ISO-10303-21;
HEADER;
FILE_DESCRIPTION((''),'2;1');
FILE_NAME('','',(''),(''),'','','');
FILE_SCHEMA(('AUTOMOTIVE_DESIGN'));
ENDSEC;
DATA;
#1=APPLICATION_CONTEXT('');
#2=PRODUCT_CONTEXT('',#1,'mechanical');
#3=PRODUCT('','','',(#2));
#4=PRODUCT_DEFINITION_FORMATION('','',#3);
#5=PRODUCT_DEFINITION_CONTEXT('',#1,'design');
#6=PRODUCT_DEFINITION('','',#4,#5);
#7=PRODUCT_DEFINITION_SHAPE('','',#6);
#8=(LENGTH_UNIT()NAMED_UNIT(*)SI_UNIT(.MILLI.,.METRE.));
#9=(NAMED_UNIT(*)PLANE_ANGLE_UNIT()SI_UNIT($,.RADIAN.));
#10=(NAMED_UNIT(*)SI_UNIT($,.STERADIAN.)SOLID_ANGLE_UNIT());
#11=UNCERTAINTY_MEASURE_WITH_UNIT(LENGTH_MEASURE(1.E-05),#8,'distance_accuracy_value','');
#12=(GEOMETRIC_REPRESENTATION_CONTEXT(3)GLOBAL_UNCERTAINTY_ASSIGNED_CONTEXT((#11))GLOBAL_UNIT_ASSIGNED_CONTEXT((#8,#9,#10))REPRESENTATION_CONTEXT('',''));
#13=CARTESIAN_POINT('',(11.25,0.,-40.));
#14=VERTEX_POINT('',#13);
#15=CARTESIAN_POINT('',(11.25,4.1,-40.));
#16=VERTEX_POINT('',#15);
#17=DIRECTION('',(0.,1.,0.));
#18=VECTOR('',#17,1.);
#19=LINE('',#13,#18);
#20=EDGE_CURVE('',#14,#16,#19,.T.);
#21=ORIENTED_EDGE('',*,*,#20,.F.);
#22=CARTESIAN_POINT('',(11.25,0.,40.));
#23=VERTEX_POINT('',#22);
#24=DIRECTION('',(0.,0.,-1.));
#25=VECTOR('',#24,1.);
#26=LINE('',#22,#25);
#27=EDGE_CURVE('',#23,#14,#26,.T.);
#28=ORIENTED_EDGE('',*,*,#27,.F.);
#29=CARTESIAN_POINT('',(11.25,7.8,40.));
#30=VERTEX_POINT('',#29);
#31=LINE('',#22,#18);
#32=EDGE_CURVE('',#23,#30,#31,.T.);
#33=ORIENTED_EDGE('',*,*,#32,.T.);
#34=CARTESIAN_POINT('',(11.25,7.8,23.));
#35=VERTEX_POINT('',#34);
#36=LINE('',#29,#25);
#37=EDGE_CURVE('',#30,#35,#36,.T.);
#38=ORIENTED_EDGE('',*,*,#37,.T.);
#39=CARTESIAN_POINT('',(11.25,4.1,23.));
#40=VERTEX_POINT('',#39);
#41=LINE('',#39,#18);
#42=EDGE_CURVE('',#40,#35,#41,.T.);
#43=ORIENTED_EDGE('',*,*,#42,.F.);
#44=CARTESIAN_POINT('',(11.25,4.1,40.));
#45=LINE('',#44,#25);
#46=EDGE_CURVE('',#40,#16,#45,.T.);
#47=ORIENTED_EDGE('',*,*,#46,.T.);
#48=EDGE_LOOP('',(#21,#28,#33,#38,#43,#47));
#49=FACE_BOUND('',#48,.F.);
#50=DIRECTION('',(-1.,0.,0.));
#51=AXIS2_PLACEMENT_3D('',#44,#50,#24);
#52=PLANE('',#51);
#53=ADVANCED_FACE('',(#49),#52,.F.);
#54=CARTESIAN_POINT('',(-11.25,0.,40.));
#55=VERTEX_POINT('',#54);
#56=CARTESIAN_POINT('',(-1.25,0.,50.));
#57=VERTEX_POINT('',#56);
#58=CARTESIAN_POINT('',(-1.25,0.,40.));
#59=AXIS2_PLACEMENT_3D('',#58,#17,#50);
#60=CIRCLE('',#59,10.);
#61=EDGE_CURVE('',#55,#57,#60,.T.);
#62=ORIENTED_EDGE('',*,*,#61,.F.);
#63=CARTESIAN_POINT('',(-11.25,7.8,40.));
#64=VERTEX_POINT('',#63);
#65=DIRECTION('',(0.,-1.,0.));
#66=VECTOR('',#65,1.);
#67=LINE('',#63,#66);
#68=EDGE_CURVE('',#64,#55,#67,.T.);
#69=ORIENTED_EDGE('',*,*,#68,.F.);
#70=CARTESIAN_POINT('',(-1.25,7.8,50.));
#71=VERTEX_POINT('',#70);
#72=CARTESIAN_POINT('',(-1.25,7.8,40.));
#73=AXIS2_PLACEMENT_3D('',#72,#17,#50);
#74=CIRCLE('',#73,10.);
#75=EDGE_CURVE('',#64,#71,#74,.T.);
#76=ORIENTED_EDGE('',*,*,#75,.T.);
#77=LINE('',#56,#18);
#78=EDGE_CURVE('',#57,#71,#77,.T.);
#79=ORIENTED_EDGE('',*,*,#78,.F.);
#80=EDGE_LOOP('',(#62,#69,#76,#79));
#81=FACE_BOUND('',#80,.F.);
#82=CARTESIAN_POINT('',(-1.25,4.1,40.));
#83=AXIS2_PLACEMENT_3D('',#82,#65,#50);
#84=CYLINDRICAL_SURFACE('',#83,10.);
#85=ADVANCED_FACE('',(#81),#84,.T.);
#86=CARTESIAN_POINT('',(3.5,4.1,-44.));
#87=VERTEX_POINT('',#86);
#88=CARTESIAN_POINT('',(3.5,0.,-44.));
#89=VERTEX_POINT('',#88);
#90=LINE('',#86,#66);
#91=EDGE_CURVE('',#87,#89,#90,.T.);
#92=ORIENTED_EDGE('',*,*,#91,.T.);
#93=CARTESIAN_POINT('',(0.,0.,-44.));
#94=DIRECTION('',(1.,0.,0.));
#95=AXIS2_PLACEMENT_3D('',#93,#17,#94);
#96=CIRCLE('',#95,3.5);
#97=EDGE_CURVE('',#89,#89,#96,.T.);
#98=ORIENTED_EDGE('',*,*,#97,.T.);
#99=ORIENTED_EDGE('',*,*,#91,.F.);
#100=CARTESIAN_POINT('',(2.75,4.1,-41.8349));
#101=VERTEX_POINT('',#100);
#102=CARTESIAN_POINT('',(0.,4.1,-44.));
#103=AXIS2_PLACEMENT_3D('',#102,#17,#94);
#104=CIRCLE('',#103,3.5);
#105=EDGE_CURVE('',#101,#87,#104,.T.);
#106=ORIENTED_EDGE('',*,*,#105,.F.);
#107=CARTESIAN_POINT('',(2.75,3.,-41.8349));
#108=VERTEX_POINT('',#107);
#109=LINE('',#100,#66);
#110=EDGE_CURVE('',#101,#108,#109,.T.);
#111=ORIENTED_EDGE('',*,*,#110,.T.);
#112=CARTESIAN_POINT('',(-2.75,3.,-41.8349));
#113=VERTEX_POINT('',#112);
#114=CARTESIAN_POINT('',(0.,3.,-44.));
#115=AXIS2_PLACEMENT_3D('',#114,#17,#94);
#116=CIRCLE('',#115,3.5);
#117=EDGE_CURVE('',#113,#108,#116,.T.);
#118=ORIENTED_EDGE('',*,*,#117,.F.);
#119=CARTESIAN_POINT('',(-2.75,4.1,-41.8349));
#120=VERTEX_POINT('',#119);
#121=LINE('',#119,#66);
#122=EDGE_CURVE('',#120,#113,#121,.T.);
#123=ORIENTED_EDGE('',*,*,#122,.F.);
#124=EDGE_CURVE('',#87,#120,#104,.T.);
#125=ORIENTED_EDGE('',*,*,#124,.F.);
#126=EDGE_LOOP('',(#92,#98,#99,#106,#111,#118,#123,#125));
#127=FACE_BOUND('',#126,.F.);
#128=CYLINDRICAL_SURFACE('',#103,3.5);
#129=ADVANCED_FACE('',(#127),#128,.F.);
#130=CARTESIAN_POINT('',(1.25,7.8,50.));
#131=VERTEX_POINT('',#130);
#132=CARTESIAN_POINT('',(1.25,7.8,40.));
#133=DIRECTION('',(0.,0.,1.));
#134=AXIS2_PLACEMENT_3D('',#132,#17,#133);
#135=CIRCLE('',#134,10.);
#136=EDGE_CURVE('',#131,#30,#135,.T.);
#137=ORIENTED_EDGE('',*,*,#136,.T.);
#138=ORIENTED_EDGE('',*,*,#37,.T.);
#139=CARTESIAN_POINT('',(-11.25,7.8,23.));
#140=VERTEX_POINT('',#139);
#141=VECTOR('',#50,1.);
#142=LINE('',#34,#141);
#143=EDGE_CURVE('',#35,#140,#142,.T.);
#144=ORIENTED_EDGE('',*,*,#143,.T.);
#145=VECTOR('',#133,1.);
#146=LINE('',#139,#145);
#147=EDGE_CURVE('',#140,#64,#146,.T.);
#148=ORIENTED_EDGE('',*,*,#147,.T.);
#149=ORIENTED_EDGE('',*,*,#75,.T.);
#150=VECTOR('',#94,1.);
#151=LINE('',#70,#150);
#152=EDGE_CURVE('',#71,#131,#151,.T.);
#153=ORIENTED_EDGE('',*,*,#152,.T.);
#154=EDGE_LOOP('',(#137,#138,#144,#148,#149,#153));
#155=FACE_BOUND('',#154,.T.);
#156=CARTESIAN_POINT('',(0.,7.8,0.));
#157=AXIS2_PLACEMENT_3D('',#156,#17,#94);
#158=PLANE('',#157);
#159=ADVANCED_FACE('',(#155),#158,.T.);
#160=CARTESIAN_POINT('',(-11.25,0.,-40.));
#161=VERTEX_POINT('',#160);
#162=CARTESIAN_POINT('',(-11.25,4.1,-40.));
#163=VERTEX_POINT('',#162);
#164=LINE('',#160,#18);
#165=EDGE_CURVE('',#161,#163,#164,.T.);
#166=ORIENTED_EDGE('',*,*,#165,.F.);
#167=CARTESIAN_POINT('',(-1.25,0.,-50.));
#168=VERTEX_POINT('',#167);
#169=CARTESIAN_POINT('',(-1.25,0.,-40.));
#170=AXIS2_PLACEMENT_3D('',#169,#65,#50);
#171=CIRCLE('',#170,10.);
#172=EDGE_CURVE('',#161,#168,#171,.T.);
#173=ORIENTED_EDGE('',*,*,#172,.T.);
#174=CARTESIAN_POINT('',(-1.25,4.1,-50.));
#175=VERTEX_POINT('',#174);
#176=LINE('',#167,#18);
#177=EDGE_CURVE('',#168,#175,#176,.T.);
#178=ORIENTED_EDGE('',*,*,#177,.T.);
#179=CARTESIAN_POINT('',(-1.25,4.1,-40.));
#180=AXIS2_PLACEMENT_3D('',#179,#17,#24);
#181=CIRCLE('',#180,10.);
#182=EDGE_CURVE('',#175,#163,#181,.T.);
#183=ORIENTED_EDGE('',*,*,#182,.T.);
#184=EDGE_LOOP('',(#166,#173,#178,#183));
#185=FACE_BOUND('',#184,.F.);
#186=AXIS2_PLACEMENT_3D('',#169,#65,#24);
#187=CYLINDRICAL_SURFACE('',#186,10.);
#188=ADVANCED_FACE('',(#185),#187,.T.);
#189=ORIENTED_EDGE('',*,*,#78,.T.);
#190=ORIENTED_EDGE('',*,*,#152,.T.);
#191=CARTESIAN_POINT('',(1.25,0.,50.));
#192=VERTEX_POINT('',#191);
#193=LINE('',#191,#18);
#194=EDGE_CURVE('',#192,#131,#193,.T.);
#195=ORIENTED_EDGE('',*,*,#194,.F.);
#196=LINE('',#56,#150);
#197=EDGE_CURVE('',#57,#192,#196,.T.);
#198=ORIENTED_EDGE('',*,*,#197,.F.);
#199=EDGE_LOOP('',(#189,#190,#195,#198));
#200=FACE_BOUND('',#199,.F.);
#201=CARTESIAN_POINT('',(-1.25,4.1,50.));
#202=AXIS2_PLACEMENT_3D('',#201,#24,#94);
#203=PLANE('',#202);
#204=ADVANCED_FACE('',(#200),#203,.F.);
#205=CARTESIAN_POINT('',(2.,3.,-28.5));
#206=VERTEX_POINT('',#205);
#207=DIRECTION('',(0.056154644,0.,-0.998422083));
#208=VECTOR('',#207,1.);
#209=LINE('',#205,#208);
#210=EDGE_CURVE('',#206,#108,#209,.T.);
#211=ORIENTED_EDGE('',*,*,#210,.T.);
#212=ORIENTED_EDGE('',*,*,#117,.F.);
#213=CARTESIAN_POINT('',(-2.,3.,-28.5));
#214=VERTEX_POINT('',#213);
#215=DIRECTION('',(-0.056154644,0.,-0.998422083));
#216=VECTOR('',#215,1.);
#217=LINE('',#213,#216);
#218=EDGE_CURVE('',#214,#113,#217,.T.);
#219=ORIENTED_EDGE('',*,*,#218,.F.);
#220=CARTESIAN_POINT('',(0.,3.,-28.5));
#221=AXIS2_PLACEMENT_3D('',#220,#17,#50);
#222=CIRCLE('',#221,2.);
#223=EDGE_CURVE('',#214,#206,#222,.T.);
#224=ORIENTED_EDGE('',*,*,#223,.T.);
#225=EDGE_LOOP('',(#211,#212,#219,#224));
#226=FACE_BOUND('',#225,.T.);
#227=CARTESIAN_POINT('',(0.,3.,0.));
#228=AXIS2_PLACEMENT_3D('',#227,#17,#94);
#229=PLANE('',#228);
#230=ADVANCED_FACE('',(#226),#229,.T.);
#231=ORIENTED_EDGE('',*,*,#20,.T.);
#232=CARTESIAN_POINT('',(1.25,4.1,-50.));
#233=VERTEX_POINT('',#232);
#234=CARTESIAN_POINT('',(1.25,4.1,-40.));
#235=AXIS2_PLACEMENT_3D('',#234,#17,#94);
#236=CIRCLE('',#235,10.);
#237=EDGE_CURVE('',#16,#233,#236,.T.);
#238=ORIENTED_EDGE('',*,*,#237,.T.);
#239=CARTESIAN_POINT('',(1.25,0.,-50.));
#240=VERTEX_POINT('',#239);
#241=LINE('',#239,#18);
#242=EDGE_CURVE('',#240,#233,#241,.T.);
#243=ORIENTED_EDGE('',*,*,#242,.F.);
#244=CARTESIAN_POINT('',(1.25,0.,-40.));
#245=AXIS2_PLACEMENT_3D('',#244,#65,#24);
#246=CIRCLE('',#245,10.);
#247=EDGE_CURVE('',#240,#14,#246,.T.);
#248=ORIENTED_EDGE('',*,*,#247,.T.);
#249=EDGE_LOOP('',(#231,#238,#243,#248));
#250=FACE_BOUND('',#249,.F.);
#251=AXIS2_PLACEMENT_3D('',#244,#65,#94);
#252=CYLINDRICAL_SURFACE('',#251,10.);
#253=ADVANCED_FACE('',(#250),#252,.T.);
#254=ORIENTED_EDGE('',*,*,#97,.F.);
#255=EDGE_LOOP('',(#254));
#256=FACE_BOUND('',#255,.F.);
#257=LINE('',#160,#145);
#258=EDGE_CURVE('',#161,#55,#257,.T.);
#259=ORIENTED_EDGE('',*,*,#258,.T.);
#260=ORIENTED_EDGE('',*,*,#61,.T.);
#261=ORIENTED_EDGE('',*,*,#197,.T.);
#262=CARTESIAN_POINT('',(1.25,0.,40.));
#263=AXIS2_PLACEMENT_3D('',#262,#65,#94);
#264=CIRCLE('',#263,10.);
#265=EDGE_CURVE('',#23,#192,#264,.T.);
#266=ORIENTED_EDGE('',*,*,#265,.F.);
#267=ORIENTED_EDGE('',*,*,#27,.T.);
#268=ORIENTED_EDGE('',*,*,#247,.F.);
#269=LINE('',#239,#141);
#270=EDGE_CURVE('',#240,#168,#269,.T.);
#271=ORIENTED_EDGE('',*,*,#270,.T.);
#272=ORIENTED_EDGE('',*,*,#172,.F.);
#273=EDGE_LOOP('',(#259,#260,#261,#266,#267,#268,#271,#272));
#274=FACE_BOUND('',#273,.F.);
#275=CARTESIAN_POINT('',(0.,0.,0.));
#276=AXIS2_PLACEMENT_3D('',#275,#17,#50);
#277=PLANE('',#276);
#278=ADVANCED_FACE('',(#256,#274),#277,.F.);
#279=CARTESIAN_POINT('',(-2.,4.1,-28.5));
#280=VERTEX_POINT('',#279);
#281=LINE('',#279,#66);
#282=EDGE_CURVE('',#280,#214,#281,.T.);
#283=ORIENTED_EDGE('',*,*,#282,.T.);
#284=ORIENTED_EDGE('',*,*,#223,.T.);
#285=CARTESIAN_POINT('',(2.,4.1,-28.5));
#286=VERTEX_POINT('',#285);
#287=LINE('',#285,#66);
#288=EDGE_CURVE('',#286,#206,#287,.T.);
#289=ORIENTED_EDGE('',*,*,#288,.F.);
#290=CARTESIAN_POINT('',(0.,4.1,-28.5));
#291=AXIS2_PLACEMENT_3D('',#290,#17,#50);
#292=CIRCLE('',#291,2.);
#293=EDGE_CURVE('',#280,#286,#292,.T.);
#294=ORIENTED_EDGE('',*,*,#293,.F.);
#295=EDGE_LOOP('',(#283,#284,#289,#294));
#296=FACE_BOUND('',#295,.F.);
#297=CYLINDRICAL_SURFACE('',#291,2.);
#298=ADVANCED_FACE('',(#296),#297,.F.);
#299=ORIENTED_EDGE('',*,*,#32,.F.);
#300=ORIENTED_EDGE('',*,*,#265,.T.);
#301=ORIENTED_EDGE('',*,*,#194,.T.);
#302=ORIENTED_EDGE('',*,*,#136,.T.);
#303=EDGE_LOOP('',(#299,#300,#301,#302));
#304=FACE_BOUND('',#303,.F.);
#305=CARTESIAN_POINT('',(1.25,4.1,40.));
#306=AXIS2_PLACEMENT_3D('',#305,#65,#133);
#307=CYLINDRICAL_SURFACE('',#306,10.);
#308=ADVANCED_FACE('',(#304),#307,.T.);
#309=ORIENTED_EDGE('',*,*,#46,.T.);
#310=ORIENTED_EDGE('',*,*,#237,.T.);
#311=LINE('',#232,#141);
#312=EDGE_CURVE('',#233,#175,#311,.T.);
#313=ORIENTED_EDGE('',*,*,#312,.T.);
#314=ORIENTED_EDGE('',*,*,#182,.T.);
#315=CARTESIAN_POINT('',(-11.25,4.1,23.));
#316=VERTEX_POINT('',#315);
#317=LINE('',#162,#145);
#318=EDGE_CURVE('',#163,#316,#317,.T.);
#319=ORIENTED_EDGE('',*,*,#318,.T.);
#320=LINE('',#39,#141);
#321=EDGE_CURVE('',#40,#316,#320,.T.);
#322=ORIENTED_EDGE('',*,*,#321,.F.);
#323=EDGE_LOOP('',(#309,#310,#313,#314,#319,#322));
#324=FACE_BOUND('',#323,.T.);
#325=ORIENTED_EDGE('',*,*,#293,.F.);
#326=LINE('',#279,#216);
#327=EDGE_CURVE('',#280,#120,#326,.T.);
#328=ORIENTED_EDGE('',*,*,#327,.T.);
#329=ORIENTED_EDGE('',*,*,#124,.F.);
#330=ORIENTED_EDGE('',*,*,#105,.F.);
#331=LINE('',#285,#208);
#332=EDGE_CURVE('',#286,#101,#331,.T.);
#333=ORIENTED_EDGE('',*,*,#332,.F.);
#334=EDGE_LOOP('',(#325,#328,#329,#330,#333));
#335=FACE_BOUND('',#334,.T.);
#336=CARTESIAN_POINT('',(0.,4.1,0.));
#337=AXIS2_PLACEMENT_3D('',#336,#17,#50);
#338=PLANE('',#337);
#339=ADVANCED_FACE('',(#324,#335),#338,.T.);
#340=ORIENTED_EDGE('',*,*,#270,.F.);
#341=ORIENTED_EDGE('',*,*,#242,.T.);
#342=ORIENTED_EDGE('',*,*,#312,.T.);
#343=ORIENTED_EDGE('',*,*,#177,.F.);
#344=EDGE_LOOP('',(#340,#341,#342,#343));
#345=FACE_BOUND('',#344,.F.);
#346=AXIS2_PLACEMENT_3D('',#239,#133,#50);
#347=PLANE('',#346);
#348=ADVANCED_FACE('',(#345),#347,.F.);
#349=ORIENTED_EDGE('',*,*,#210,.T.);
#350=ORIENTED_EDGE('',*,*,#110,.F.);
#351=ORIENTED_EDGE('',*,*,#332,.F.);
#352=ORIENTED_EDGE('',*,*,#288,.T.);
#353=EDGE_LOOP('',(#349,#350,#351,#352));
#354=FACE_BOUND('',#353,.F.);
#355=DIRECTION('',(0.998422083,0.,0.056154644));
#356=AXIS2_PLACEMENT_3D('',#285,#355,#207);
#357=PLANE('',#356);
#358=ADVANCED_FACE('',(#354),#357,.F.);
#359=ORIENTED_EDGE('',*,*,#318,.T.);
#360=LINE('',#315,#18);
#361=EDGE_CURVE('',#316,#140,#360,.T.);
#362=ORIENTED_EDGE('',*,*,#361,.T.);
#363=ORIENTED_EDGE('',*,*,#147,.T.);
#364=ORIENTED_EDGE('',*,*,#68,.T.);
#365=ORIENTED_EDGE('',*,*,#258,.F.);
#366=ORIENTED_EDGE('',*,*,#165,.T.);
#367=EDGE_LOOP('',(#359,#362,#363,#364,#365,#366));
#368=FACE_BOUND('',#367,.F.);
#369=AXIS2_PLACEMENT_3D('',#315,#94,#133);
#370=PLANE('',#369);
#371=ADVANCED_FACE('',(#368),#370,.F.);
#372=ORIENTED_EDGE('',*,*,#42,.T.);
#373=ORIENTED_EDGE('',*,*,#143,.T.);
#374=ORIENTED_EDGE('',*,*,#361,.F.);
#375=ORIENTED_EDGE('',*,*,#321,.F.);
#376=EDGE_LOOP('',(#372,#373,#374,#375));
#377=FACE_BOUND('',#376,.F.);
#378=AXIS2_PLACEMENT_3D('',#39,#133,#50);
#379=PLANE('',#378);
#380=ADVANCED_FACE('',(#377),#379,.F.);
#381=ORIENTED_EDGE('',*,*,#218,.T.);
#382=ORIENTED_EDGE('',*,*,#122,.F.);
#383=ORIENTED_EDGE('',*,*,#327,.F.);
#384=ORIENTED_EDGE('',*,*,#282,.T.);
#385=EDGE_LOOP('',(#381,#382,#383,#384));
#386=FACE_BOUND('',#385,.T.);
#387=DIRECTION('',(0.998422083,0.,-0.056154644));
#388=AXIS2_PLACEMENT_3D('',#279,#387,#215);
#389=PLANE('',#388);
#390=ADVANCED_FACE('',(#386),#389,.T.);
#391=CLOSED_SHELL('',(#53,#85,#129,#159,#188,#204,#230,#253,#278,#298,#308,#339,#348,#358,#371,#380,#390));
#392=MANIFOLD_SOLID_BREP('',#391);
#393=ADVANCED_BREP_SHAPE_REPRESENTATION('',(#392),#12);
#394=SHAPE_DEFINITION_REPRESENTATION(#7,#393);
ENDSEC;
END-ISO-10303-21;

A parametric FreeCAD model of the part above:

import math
import FreeCAD as App
import Part
import Sketcher
Q = App.Units.Quantity

doc = App.newDocument("Part")
body = doc.addObject("PartDesign::Body", "Body")

sketch1 = body.newObject("Sketcher::SketchObject", "Sketch")
sketch1.AttachmentSupport = (doc.getObject("XZ_Plane"), [""])
sketch1.MapMode = "FlatFace"
sketch1.addGeometry([
    Part.LineSegment(App.Vector(-1.2, 50, 0), App.Vector(1.2, 50, 0)),
    Part.ArcOfCircle(Part.Circle(App.Vector(1.2, 40, 0), App.Vector(0, 0, 1), 10), math.radians(0), math.radians(90)),
    Part.LineSegment(App.Vector(11.2, 40, 0), App.Vector(11.2, -40, 0)),
    Part.ArcOfCircle(Part.Circle(App.Vector(1.2, -40, 0), App.Vector(0, 0, 1), 10), math.radians(-90), math.radians(0)),
    Part.LineSegment(App.Vector(1.2, -50, 0), App.Vector(-1.2, -50, 0)),
    Part.ArcOfCircle(Part.Circle(App.Vector(-1.2, -40, 0), App.Vector(0, 0, 1), 10), math.radians(180), math.radians(270)),
    Part.LineSegment(App.Vector(-11.2, -40, 0), App.Vector(-11.2, 40, 0)),
    Part.ArcOfCircle(Part.Circle(App.Vector(-1.2, 40, 0), App.Vector(0, 0, 1), 10), math.radians(90), math.radians(180)),
], False)
sketch1.addConstraint([
    Sketcher.Constraint("Tangent", 0, 2, 1, 2),
    Sketcher.Constraint("Tangent", 1, 1, 2, 1),
    Sketcher.Constraint("Tangent", 2, 2, 3, 2),
    Sketcher.Constraint("Tangent", 3, 1, 4, 1),
    Sketcher.Constraint("Tangent", 4, 2, 5, 2),
    Sketcher.Constraint("Tangent", 5, 1, 6, 1),
    Sketcher.Constraint("Tangent", 6, 2, 7, 2),
    Sketcher.Constraint("Tangent", 7, 1, 0, 1),
    Sketcher.Constraint("Horizontal", 0),
    Sketcher.Constraint("Vertical", 2),
    Sketcher.Constraint("Horizontal", 4),
    Sketcher.Constraint("Vertical", 6),
    Sketcher.Constraint("Equal", 1, 3),
    Sketcher.Constraint("Equal", 3, 5),
    Sketcher.Constraint("Equal", 5, 7),
    Sketcher.Constraint("Symmetric", 1, 3, 5, 3, -1, 1),
    Sketcher.Constraint("Radius", 1, Q("10 mm")),
    Sketcher.Constraint("DistanceX", 5, 1, 2, 2, Q("22.5 mm")),
    Sketcher.Constraint("DistanceY", 2, 2, 2, 1, Q("80 mm")),
])
pad1 = body.newObject("PartDesign::Pad", "Pad")
pad1.Profile = sketch1
pad1.Length = 4.1
pad1.Reversed = True

sketch2 = body.newObject("Sketcher::SketchObject", "Sketch001")
sketch2.AttachmentSupport = (doc.getObject("XZ_Plane"), [""])
sketch2.MapMode = "FlatFace"
sketch2.AttachmentOffset = App.Placement(App.Vector(0, 0, -4.1), App.Rotation())
sketch2.addGeometry(Part.Circle(App.Vector(0, -44, 0), App.Vector(0, 0, 1), 3.5), False)
sketch2.addConstraint([
    Sketcher.Constraint("PointOnObject", 0, 3, -2),
    Sketcher.Constraint("Diameter", 0, Q("7 mm")),
    Sketcher.Constraint("DistanceY", 0, 3, -1, 1, Q("44 mm")),
])
pocket1 = body.newObject("PartDesign::Pocket", "Pocket")
pocket1.Profile = sketch2
pocket1.Length = 8
pocket1.Reversed = True

sketch3 = body.newObject("Sketcher::SketchObject", "Sketch002")
sketch3.AttachmentSupport = (doc.getObject("XZ_Plane"), [""])
sketch3.MapMode = "FlatFace"
sketch3.AttachmentOffset = App.Placement(App.Vector(0, 0, -4.1), App.Rotation())
sketch3.addGeometry([
    Part.LineSegment(App.Vector(2.8, -41.8, 0), App.Vector(-2.8, -41.8, 0)),
    Part.LineSegment(App.Vector(-2.8, -41.8, 0), App.Vector(-2, -28.5, 0)),
    Part.ArcOfCircle(Part.Circle(App.Vector(0, -28.5, 0), App.Vector(0, 0, 1), 2), math.radians(0), math.radians(180)),
    Part.LineSegment(App.Vector(2, -28.5, 0), App.Vector(2.8, -41.8, 0)),
], False)
sketch3.addConstraint([
    Sketcher.Constraint("Coincident", 0, 2, 1, 1),
    Sketcher.Constraint("Coincident", 1, 2, 2, 2),
    Sketcher.Constraint("Coincident", 2, 1, 3, 1),
    Sketcher.Constraint("Coincident", 3, 2, 0, 1),
    Sketcher.Constraint("Horizontal", 0),
    Sketcher.Constraint("Symmetric", 1, 2, 2, 1, -2),
    Sketcher.Constraint("Horizontal", 2, 3, 1, 2),
    Sketcher.Constraint("Equal", 1, 3),
    Sketcher.Constraint("DistanceX", 0, 2, 0, 1, Q("5.5 mm")),
    Sketcher.Constraint("Radius", 2, Q("2 mm")),
    Sketcher.Constraint("DistanceY", 0, 2, 2, 3, Q("13.335 mm")),
    Sketcher.Constraint("DistanceY", 2, 3, -1, 1, Q("28.5 mm")),
])
pocket2 = body.newObject("PartDesign::Pocket", "Pocket001")
pocket2.Profile = sketch3
pocket2.Length = 1.1
pocket2.Reversed = True

sketch4 = body.newObject("Sketcher::SketchObject", "Sketch003")
sketch4.AttachmentSupport = (doc.getObject("XZ_Plane"), [""])
sketch4.MapMode = "FlatFace"
sketch4.AttachmentOffset = App.Placement(App.Vector(0, 0, -4.1), App.Rotation())
sketch4.addGeometry([
    Part.ArcOfCircle(Part.Circle(App.Vector(-1.2, 40, 0), App.Vector(0, 0, 1), 10), math.radians(90), math.radians(180)),
    Part.LineSegment(App.Vector(-1.2, 50, 0), App.Vector(1.2, 50, 0)),
    Part.ArcOfCircle(Part.Circle(App.Vector(1.2, 40, 0), App.Vector(0, 0, 1), 10), math.radians(0), math.radians(90)),
    Part.LineSegment(App.Vector(11.2, 40, 0), App.Vector(11.2, 23, 0)),
    Part.LineSegment(App.Vector(11.2, 23, 0), App.Vector(-11.2, 23, 0)),
    Part.LineSegment(App.Vector(-11.2, 23, 0), App.Vector(-11.2, 40, 0)),
], False)
sketch4.addConstraint([
    Sketcher.Constraint("Tangent", 0, 1, 1, 1),
    Sketcher.Constraint("Tangent", 1, 2, 2, 2),
    Sketcher.Constraint("Tangent", 2, 1, 3, 1),
    Sketcher.Constraint("Coincident", 3, 2, 4, 1),
    Sketcher.Constraint("Coincident", 4, 2, 5, 1),
    Sketcher.Constraint("Tangent", 5, 2, 0, 2),
    Sketcher.Constraint("Horizontal", 1),
    Sketcher.Constraint("Vertical", 3),
    Sketcher.Constraint("Horizontal", 4),
    Sketcher.Constraint("Vertical", 5),
    Sketcher.Constraint("Equal", 0, 2),
    Sketcher.Constraint("Radius", 0, Q("10 mm")),
    Sketcher.Constraint("DistanceX", 4, 2, 4, 1, Q("22.5 mm")),
    Sketcher.Constraint("DistanceY", 3, 2, 1, 2, Q("27 mm")),
    Sketcher.Constraint("DistanceY", -1, 1, 0, 3, Q("40 mm")),
    Sketcher.Constraint("DistanceX", 0, 3, -1, 1, Q("1.25 mm")),
])
pad2 = body.newObject("PartDesign::Pad", "Pad001")
pad2.Profile = sketch4
pad2.Length = 3.7
pad2.Reversed = True

doc.recompute()
